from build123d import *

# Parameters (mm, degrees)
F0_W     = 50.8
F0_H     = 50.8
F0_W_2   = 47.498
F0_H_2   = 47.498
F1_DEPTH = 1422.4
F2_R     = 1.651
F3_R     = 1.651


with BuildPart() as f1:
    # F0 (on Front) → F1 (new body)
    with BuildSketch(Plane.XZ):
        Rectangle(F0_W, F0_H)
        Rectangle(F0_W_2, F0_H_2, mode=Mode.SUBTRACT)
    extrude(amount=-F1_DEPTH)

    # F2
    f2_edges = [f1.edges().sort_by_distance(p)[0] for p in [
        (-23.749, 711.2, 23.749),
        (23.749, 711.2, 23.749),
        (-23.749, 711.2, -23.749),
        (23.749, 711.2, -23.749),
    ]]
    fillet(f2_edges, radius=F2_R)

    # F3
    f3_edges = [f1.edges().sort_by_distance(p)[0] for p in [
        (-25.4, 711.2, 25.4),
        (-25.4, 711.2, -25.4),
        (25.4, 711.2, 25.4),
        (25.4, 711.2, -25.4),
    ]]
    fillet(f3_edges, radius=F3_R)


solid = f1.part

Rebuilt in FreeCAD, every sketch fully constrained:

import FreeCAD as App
import Part
import Sketcher
Q = App.Units.Quantity


def edges_at(feature, points):
    """Names of the edges that pass closest to the given points."""
    edges = feature.Shape.Edges
    near = lambda p: min(range(len(edges)), key=lambda i: edges[i].distToShape(Part.Vertex(*p))[0])
    return sorted({f"Edge{near(p) + 1}" for p in points})


def add_polygon(sketch, points):
    """Adds a closed chain of lines whose ends are joined by coincident constraints."""
    first, n = sketch.GeometryCount, len(points)
    for a, b in zip(points, points[1:] + points[:1]):
        sketch.addGeometry(Part.LineSegment(App.Vector(*a, 0), App.Vector(*b, 0)), False)
    for i in range(n):
        sketch.addConstraint(Sketcher.Constraint("Coincident", first + i, 2, first + (i + 1) % n, 1))

doc = App.newDocument("Part")
body = doc.addObject("PartDesign::Body", "Body")

# Sketch on XZ plane
sketch1 = body.newObject("Sketcher::SketchObject", "Sketch")
sketch1.AttachmentSupport = (doc.getObject("XZ_Plane"), [""])
sketch1.MapMode = "FlatFace"
add_polygon(sketch1, [(-25, 25), (-25, -25), (25, -25), (25, 25)])  # lines 0-3
add_polygon(sketch1, [(24, -24), (-24, -24), (-24, 24), (24, 24)])  # lines 4-7
sketch1.addConstraint([
    Sketcher.Constraint("Vertical", 0),
    Sketcher.Constraint("Horizontal", 1),
    Sketcher.Constraint("Vertical", 2),
    Sketcher.Constraint("Horizontal", 3),
    Sketcher.Constraint("Horizontal", 4),
    Sketcher.Constraint("Vertical", 5),
    Sketcher.Constraint("Horizontal", 6),
    Sketcher.Constraint("Vertical", 7),
    Sketcher.Constraint("Symmetric", 0, 2, 2, 2, -1, 1),
    Sketcher.Constraint("Symmetric", 4, 2, 6, 2, -1, 1),
    Sketcher.Constraint("Equal", 3, 0),
    Sketcher.Constraint("Equal", 6, 5),
    Sketcher.Constraint("DistanceX", 1, 1, 1, 2, Q("2 in")),
    Sketcher.Constraint("DistanceX", 4, 2, 4, 1, Q("1.87 in")),
])
pad1 = body.newObject("PartDesign::Pad", "Pad")
pad1.Profile = sketch1
pad1.Length = Q("56 in")
pad1.Reversed = True
doc.recompute()

fillet = body.newObject("PartDesign::Fillet", "Fillet")
fillet.Base = (pad1, edges_at(pad1, [
    (-23.749, 711.2, 23.749),
    (23.749, 711.2, 23.749),
    (-23.749, 711.2, -23.749),
    (23.749, 711.2, -23.749),
]))
fillet.Radius = Q("0.065 in")
doc.recompute()

fillet2 = body.newObject("PartDesign::Fillet", "Fillet001")
fillet2.Base = (fillet, edges_at(fillet, [
    (-25.4, 711.2, 25.4),
    (-25.4, 711.2, -25.4),
    (25.4, 711.2, 25.4),
    (25.4, 711.2, -25.4),
]))
fillet2.Radius = Q("0.065 in")

doc.recompute()
